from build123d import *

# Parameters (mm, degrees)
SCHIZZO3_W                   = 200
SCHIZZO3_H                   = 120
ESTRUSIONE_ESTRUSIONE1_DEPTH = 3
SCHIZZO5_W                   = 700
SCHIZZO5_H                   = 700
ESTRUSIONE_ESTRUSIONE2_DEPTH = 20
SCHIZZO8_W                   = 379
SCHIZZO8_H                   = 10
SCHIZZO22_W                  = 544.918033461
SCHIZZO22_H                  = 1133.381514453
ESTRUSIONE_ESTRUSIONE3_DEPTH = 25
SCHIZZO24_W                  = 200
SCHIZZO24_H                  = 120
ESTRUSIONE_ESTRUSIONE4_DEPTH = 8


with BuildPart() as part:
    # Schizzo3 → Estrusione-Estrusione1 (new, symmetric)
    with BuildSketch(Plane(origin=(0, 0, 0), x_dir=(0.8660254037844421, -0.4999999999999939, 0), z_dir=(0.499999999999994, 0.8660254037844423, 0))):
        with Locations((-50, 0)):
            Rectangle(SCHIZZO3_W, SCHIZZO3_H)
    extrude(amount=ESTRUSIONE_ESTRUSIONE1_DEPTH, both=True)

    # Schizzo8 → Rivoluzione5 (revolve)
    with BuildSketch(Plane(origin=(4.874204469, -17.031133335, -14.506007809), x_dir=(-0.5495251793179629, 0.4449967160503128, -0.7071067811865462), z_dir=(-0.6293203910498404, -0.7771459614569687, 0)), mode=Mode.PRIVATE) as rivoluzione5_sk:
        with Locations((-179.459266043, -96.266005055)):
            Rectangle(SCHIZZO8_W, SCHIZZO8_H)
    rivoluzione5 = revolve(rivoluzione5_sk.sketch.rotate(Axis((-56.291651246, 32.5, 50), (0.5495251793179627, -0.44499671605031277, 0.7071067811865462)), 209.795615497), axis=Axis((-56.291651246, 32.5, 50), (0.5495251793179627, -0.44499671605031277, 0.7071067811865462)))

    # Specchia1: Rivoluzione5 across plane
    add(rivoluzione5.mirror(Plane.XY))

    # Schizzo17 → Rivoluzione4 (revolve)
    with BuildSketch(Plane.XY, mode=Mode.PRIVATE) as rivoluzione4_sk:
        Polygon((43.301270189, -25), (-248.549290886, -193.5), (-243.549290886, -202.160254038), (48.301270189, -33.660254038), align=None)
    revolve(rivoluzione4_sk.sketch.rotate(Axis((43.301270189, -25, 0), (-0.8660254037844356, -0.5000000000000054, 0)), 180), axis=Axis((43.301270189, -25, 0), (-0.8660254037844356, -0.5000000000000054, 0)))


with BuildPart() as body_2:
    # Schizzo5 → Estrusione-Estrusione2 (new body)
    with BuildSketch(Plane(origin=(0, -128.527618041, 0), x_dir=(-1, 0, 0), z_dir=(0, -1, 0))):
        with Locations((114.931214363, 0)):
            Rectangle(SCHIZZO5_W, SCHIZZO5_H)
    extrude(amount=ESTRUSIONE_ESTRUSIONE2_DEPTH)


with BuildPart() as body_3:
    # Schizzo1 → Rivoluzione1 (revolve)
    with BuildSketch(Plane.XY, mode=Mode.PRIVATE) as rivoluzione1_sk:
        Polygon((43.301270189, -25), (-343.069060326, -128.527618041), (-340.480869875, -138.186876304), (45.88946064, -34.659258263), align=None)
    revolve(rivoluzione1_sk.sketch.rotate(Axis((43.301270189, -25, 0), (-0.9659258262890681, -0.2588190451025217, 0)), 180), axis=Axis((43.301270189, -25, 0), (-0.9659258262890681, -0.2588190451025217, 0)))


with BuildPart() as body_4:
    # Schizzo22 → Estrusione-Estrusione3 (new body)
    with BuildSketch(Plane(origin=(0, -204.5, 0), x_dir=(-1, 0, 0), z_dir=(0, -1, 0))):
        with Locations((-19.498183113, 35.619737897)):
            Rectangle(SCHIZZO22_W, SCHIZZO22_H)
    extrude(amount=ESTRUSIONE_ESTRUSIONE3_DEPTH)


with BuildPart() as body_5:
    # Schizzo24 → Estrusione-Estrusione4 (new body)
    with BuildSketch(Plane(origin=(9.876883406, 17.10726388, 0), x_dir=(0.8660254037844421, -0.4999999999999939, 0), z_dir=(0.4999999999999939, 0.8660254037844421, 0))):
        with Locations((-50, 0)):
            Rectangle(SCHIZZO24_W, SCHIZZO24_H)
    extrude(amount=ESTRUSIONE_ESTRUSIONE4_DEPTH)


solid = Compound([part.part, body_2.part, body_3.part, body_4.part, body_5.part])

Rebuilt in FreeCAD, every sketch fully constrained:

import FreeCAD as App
import Part
import Sketcher
from FreeCAD import Vector
Q = App.Units.Quantity

doc = App.newDocument("Part")
body = doc.addObject("PartDesign::Body", "Body")

sketch1 = body.newObject("Sketcher::SketchObject", "Sketch")
sketch1.Placement = App.Placement(Vector(0, 0, 0), App.Rotation(Vector(0.866025404, -0.5, 0), Vector(0, 0, -1), Vector(0.5, 0.866025404, 0), "ZXY"))
sketch1.addGeometry(Part.LineSegment(Vector(-150, 60, 0), Vector(-150, -60, 0)), False)
sketch1.addGeometry(Part.LineSegment(Vector(-150, -60, 0), Vector(50, -60, 0)), False)
sketch1.addGeometry(Part.LineSegment(Vector(50, -60, 0), Vector(50, 60, 0)), False)
sketch1.addGeometry(Part.LineSegment(Vector(50, 60, 0), Vector(-150, 60, 0)), False)
sketch1.addConstraint(Sketcher.Constraint("Coincident", 0, 2, 1, 1))
sketch1.addConstraint(Sketcher.Constraint("Coincident", 1, 2, 2, 1))
sketch1.addConstraint(Sketcher.Constraint("Coincident", 2, 2, 3, 1))
sketch1.addConstraint(Sketcher.Constraint("Coincident", 3, 2, 0, 1))
sketch1.addConstraint(Sketcher.Constraint("Vertical", 0))
sketch1.addConstraint(Sketcher.Constraint("Horizontal", 1))
sketch1.addConstraint(Sketcher.Constraint("Vertical", 2))
sketch1.addConstraint(Sketcher.Constraint("Horizontal", 3))
sketch1.addConstraint(Sketcher.Constraint("DistanceX", 1, 1, 1, 2, 200.0))
sketch1.addConstraint(Sketcher.Constraint("DistanceY", 0, 2, 0, 1, 120.0))
sketch1.addConstraint(Sketcher.Constraint("DistanceX", 0, 2, -1, 1, 150.0))
sketch1.addConstraint(Sketcher.Constraint("DistanceY", 0, 2, -1, 1, 60.0))
pad1 = body.newObject("PartDesign::Pad", "Pad")
pad1.Profile = sketch1
pad1.Length = 6
pad1.Midplane = True

sketch2 = body.newObject("Sketcher::SketchObject", "Sketch001")
sketch2.Placement = App.Placement(Vector(4.874204, -17.031133, -14.506008), App.Rotation(Vector(-0.549525179, 0.444996716, -0.707106781), Vector(0.549525179, -0.444996716, -0.707106781), Vector(-0.629320391, -0.777145961, 0), "ZXY"))
sketch2.addGeometry(Part.LineSegment(Vector(-369, -91, 0), Vector(-369, -101, 0)), False)
sketch2.addGeometry(Part.LineSegment(Vector(-369, -101, 0), Vector(10, -101, 0)), False)
sketch2.addGeometry(Part.LineSegment(Vector(10, -101, 0), Vector(10, -91, 0)), False)
sketch2.addGeometry(Part.LineSegment(Vector(10, -91, 0), Vector(-369, -91, 0)), False)
sketch2.addGeometry(Part.LineSegment(Vector(10, -101, 0), Vector(-369, -101, 0)), True)
sketch2.addConstraint(Sketcher.Constraint("Coincident", 0, 2, 1, 1))
sketch2.addConstraint(Sketcher.Constraint("Coincident", 1, 2, 2, 1))
sketch2.addConstraint(Sketcher.Constraint("Coincident", 2, 2, 3, 1))
sketch2.addConstraint(Sketcher.Constraint("Coincident", 3, 2, 0, 1))
sketch2.addConstraint(Sketcher.Constraint("Vertical", 0))
sketch2.addConstraint(Sketcher.Constraint("Horizontal", 1))
sketch2.addConstraint(Sketcher.Constraint("Vertical", 2))
sketch2.addConstraint(Sketcher.Constraint("Horizontal", 3))
sketch2.addConstraint(Sketcher.Constraint("Horizontal", 4))
sketch2.addConstraint(Sketcher.Constraint("Coincident", 4, 1, 1, 2))
sketch2.addConstraint(Sketcher.Constraint("Vertical", 3, 2, 4, 2))
sketch2.addConstraint(Sketcher.Constraint("DistanceX", 1, 1, 1, 2, 379.0))
sketch2.addConstraint(Sketcher.Constraint("DistanceY", 0, 2, 0, 1, 10.0))
sketch2.addConstraint(Sketcher.Constraint("DistanceX", 0, 2, -1, 1, 368.959266))
sketch2.addConstraint(Sketcher.Constraint("DistanceY", 0, 2, -1, 1, 101.266005))
revolution = body.newObject("PartDesign::Revolution", "Revolution")
revolution.Profile = sketch2
revolution.ReferenceAxis = (sketch2, ["Axis0"])
revolution.Angle = 360
doc.recompute()

mirrored = body.newObject("PartDesign::Mirrored", "Mirrored")
mirrored.Originals = [revolution]
mirrored.MirrorPlane = (doc.getObject("XY_Plane"), [""])
body.Tip = mirrored

sketch3 = body.newObject("Sketcher::SketchObject", "Sketch002")
sketch3.AttachmentSupport = (doc.getObject("XY_Plane"), [""])
sketch3.MapMode = "FlatFace"
sketch3.addGeometry(Part.LineSegment(Vector(43, -25, 0), Vector(-249, -194, 0)), False)
sketch3.addGeometry(Part.LineSegment(Vector(-249, -194, 0), Vector(-244, -202, 0)), False)
sketch3.addGeometry(Part.LineSegment(Vector(-244, -202, 0), Vector(48, -34, 0)), False)
sketch3.addGeometry(Part.LineSegment(Vector(48, -34, 0), Vector(43, -25, 0)), False)
sketch3.addGeometry(Part.LineSegment(Vector(43, -25, 0), Vector(-249, -194, 0)), True)
sketch3.addConstraint(Sketcher.Constraint("Coincident", 0, 2, 1, 1))
sketch3.addConstraint(Sketcher.Constraint("Coincident", 1, 2, 2, 1))
sketch3.addConstraint(Sketcher.Constraint("Coincident", 2, 2, 3, 1))
sketch3.addConstraint(Sketcher.Constraint("Coincident", 3, 2, 0, 1))
sketch3.addConstraint(Sketcher.Constraint("Coincident", 4, 1, 3, 2))
sketch3.addConstraint(Sketcher.Constraint("Coincident", 4, 2, 0, 2))
sketch3.addConstraint(Sketcher.Constraint("Perpendicular", 0, 1))
sketch3.addConstraint(Sketcher.Constraint("Perpendicular", 1, 2))
sketch3.addConstraint(Sketcher.Constraint("Perpendicular", 2, 3))
sketch3.addConstraint(Sketcher.Constraint("Angle", 0, Q("-150 deg")))
sketch3.addConstraint(Sketcher.Constraint("Distance", 0, 337.0))
sketch3.addConstraint(Sketcher.Constraint("Distance", 1, 10.0))
sketch3.addConstraint(Sketcher.Constraint("DistanceY", 3, 2, -1, 1, 25.0))
sketch3.addConstraint(Sketcher.Constraint("DistanceX", 0, 2, -1, 1, 248.549291))
revolution2 = body.newObject("PartDesign::Revolution", "Revolution001")
revolution2.Profile = sketch3
revolution2.ReferenceAxis = (sketch3, ["Axis0"])
revolution2.Angle = 360
body2 = doc.addObject("PartDesign::Body", "Body001")

sketch4 = body2.newObject("Sketcher::SketchObject", "Sketch003")
sketch4.AttachmentSupport = (doc.getObject("XZ_Plane001"), [""])
sketch4.MapMode = "FlatFace"
sketch4.AttachmentOffset = App.Placement(Vector(0, 0, 128.527618), App.Rotation())
sketch4.addGeometry(Part.LineSegment(Vector(235, -350, 0), Vector(235, 350, 0)), False)
sketch4.addGeometry(Part.LineSegment(Vector(235, 350, 0), Vector(-465, 350, 0)), False)
sketch4.addGeometry(Part.LineSegment(Vector(-465, 350, 0), Vector(-465, -350, 0)), False)
sketch4.addGeometry(Part.LineSegment(Vector(-465, -350, 0), Vector(235, -350, 0)), False)
sketch4.addConstraint(Sketcher.Constraint("Coincident", 0, 2, 1, 1))
sketch4.addConstraint(Sketcher.Constraint("Coincident", 1, 2, 2, 1))
sketch4.addConstraint(Sketcher.Constraint("Coincident", 2, 2, 3, 1))
sketch4.addConstraint(Sketcher.Constraint("Coincident", 3, 2, 0, 1))
sketch4.addConstraint(Sketcher.Constraint("Vertical", 0))
sketch4.addConstraint(Sketcher.Constraint("Horizontal", 1))
sketch4.addConstraint(Sketcher.Constraint("Vertical", 2))
sketch4.addConstraint(Sketcher.Constraint("Horizontal", 3))
sketch4.addConstraint(Sketcher.Constraint("Equal", 3, 0))
sketch4.addConstraint(Sketcher.Constraint("DistanceX", 1, 2, 1, 1, 700.0))
sketch4.addConstraint(Sketcher.Constraint("DistanceY", -1, 1, 0, 2, 350.0))
sketch4.addConstraint(Sketcher.Constraint("DistanceX", -1, 1, 0, 2, 235.068786))
pad2 = body2.newObject("PartDesign::Pad", "Pad001")
pad2.Profile = sketch4
pad2.Length = 20
body3 = doc.addObject("PartDesign::Body", "Body002")

sketch5 = body3.newObject("Sketcher::SketchObject", "Sketch004")
sketch5.AttachmentSupport = (doc.getObject("XY_Plane002"), [""])
sketch5.MapMode = "FlatFace"
sketch5.addGeometry(Part.LineSegment(Vector(43, -25, 0), Vector(-343, -129, 0)), False)
sketch5.addGeometry(Part.LineSegment(Vector(-343, -129, 0), Vector(-340, -138, 0)), False)
sketch5.addGeometry(Part.LineSegment(Vector(-340, -138, 0), Vector(46, -35, 0)), False)
sketch5.addGeometry(Part.LineSegment(Vector(46, -35, 0), Vector(43, -25, 0)), False)
sketch5.addGeometry(Part.LineSegment(Vector(43, -25, 0), Vector(-343, -129, 0)), True)
sketch5.addConstraint(Sketcher.Constraint("Coincident", 0, 2, 1, 1))
sketch5.addConstraint(Sketcher.Constraint("Coincident", 1, 2, 2, 1))
sketch5.addConstraint(Sketcher.Constraint("Coincident", 2, 2, 3, 1))
sketch5.addConstraint(Sketcher.Constraint("Coincident", 3, 2, 0, 1))
sketch5.addConstraint(Sketcher.Constraint("Coincident", 4, 1, 3, 2))
sketch5.addConstraint(Sketcher.Constraint("Coincident", 4, 2, 0, 2))
sketch5.addConstraint(Sketcher.Constraint("Perpendicular", 0, 1))
sketch5.addConstraint(Sketcher.Constraint("Perpendicular", 1, 2))
sketch5.addConstraint(Sketcher.Constraint("Perpendicular", 2, 3))
sketch5.addConstraint(Sketcher.Constraint("Angle", 0, Q("-165 deg")))
sketch5.addConstraint(Sketcher.Constraint("Distance", 0, 400.0))
sketch5.addConstraint(Sketcher.Constraint("Distance", 1, 10.0))
sketch5.addConstraint(Sketcher.Constraint("DistanceY", 3, 2, -1, 1, 25.0))
sketch5.addConstraint(Sketcher.Constraint("DistanceX", 0, 2, -1, 1, 343.06906))
revolution3 = body3.newObject("PartDesign::Revolution", "Revolution002")
revolution3.Profile = sketch5
revolution3.ReferenceAxis = (sketch5, ["Axis0"])
revolution3.Angle = 360
body4 = doc.addObject("PartDesign::Body", "Body003")

sketch6 = body4.newObject("Sketcher::SketchObject", "Sketch005")
sketch6.AttachmentSupport = (doc.getObject("XZ_Plane003"), [""])
sketch6.MapMode = "FlatFace"
sketch6.AttachmentOffset = App.Placement(Vector(0, 0, 204.5), App.Rotation())
sketch6.addGeometry(Part.LineSegment(Vector(292, -602, 0), Vector(292, 531, 0)), False)
sketch6.addGeometry(Part.LineSegment(Vector(292, 531, 0), Vector(-253, 531, 0)), False)
sketch6.addGeometry(Part.LineSegment(Vector(-253, 531, 0), Vector(-253, -602, 0)), False)
sketch6.addGeometry(Part.LineSegment(Vector(-253, -602, 0), Vector(292, -602, 0)), False)
sketch6.addConstraint(Sketcher.Constraint("Coincident", 0, 2, 1, 1))
sketch6.addConstraint(Sketcher.Constraint("Coincident", 1, 2, 2, 1))
sketch6.addConstraint(Sketcher.Constraint("Coincident", 2, 2, 3, 1))
sketch6.addConstraint(Sketcher.Constraint("Coincident", 3, 2, 0, 1))
sketch6.addConstraint(Sketcher.Constraint("Vertical", 0))
sketch6.addConstraint(Sketcher.Constraint("Horizontal", 1))
sketch6.addConstraint(Sketcher.Constraint("Vertical", 2))
sketch6.addConstraint(Sketcher.Constraint("Horizontal", 3))
sketch6.addConstraint(Sketcher.Constraint("DistanceX", -1, 1, 0, 2, 291.9572))
sketch6.addConstraint(Sketcher.Constraint("DistanceX", 1, 2, 1, 1, 544.918033))
sketch6.addConstraint(Sketcher.Constraint("DistanceY", 0, 1, 0, 2, 1133.381514))
sketch6.addConstraint(Sketcher.Constraint("DistanceY", -1, 1, 0, 2, 531.071019))
pad3 = body4.newObject("PartDesign::Pad", "Pad002")
pad3.Profile = sketch6
pad3.Length = 25
body5 = doc.addObject("PartDesign::Body", "Body004")

sketch7 = body5.newObject("Sketcher::SketchObject", "Sketch006")
sketch7.Placement = App.Placement(Vector(9.876883, 17.107264, 0), App.Rotation(Vector(0.866025404, -0.5, 0), Vector(0, 0, -1), Vector(0.5, 0.866025404, 0), "ZXY"))
sketch7.addGeometry(Part.LineSegment(Vector(-150, 60, 0), Vector(-150, -60, 0)), False)
sketch7.addGeometry(Part.LineSegment(Vector(-150, -60, 0), Vector(50, -60, 0)), False)
sketch7.addGeometry(Part.LineSegment(Vector(50, -60, 0), Vector(50, 60, 0)), False)
sketch7.addGeometry(Part.LineSegment(Vector(50, 60, 0), Vector(-150, 60, 0)), False)
sketch7.addConstraint(Sketcher.Constraint("Coincident", 0, 2, 1, 1))
sketch7.addConstraint(Sketcher.Constraint("Coincident", 1, 2, 2, 1))
sketch7.addConstraint(Sketcher.Constraint("Coincident", 2, 2, 3, 1))
sketch7.addConstraint(Sketcher.Constraint("Coincident", 3, 2, 0, 1))
sketch7.addConstraint(Sketcher.Constraint("Vertical", 0))
sketch7.addConstraint(Sketcher.Constraint("Horizontal", 1))
sketch7.addConstraint(Sketcher.Constraint("Vertical", 2))
sketch7.addConstraint(Sketcher.Constraint("Horizontal", 3))
sketch7.addConstraint(Sketcher.Constraint("DistanceX", 1, 1, 1, 2, 200.0))
sketch7.addConstraint(Sketcher.Constraint("DistanceY", 0, 2, 0, 1, 120.0))
sketch7.addConstraint(Sketcher.Constraint("DistanceX", 0, 2, -1, 1, 150.0))
sketch7.addConstraint(Sketcher.Constraint("DistanceY", 0, 2, -1, 1, 60.0))
pad4 = body5.newObject("PartDesign::Pad", "Pad003")
pad4.Profile = sketch7
pad4.Length = 8

doc.recompute()
